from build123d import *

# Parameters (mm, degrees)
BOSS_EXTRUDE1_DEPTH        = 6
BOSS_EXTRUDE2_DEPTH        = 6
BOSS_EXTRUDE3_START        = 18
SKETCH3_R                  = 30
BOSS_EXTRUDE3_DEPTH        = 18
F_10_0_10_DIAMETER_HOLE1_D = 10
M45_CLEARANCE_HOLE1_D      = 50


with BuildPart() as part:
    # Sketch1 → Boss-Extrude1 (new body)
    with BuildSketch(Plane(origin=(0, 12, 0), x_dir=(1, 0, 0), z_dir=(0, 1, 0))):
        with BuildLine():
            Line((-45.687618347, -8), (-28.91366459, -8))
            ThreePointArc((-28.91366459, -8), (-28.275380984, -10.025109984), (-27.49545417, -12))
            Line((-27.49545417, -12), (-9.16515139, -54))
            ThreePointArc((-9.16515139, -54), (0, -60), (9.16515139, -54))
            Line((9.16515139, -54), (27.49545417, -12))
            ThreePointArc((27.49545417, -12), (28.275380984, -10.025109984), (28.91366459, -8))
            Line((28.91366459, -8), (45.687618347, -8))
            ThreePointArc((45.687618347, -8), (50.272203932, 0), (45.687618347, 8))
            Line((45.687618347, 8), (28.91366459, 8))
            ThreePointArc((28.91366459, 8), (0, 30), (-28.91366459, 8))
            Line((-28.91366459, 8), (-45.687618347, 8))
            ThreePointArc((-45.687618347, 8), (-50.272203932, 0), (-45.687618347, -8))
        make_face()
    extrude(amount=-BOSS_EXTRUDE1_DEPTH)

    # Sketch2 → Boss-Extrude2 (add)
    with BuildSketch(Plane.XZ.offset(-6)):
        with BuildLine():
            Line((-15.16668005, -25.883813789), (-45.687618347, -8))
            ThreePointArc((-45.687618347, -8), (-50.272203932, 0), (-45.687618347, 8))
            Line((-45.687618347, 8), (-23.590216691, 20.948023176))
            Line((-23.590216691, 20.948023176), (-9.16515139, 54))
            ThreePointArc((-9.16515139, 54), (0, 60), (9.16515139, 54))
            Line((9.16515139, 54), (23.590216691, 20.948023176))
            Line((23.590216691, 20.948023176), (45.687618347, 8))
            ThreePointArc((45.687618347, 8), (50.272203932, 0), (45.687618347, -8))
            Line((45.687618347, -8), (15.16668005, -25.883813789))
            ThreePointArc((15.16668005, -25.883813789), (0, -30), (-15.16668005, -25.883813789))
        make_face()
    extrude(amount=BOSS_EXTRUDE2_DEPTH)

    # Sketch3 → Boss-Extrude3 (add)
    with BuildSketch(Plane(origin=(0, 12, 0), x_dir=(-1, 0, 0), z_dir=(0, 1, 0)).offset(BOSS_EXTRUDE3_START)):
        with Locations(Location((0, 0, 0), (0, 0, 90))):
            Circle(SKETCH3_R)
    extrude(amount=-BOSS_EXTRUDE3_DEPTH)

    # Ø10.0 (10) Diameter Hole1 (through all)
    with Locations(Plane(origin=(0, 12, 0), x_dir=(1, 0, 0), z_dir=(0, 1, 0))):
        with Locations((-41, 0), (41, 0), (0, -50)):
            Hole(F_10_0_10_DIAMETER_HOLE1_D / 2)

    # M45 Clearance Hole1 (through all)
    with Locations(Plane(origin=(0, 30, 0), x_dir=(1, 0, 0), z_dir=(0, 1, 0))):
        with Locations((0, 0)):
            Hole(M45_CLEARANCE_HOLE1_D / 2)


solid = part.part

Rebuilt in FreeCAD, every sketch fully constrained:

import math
import FreeCAD as App
import Part
import Sketcher

V = App.Vector
Q = App.Units.Quantity

doc = App.newDocument("Part")
body = doc.addObject("PartDesign::Body", "Body")

# Sketch on XZ plane
sketch1 = body.newObject("Sketcher::SketchObject", "Sketch")
sketch1.AttachmentSupport = (doc.getObject("XZ_Plane"), [""])
sketch1.MapMode = "FlatFace"
sketch1.AttachmentOffset = App.Placement(V(0, 0, -12), App.Rotation())
sketch1.addGeometry([
    Part.LineSegment(V(-45.7, 8, 0), V(-28.9, 8, 0)),  # 0
    Part.ArcOfCircle(Part.Circle(V(0, 0, 0), V(0, 0, 1), 30), math.radians(156.42), math.radians(164.53)),  # 1
    Part.LineSegment(V(-27.5, 12, 0), V(-9.2, 54, 0)),  # 2
    Part.ArcOfCircle(Part.Circle(V(0, 50, 0), V(0, 0, 1), 10), math.radians(24), math.radians(156)),  # 3
    Part.LineSegment(V(9.2, 54, 0), V(27.5, 12, 0)),  # 4
    Part.ArcOfCircle(Part.Circle(V(0, 0, 0), V(0, 0, 1), 30), math.radians(15.47), math.radians(23.58)),  # 5
    Part.LineSegment(V(28.9, 8, 0), V(45.7, 8, 0)),  # 6
    Part.ArcOfCircle(Part.Circle(V(41, 0, 0), V(0, 0, 1), 9.3), math.radians(-60), math.radians(60)),  # 7
    Part.LineSegment(V(45.7, -8, 0), V(28.9, -8, 0)),  # 8
    Part.ArcOfCircle(Part.Circle(V(0, 0, 0), V(0, 0, 1), 30), math.radians(-165), math.radians(-15)),  # 9
    Part.LineSegment(V(-28.9, -8, 0), V(-45.7, -8, 0)),  # 10
    Part.ArcOfCircle(Part.Circle(V(-41, 0, 0), V(0, 0, 1), 9.3), math.radians(120), math.radians(240)),  # 11
], False)
sketch1.addConstraint([
    Sketcher.Constraint("Coincident", 0, 2, 1, 2),
    Sketcher.Constraint("Tangent", 1, 1, 2, 1),
    Sketcher.Constraint("Tangent", 2, 2, 3, 2),
    Sketcher.Constraint("Tangent", 3, 1, 4, 1),
    Sketcher.Constraint("Tangent", 4, 2, 5, 2),
    Sketcher.Constraint("Coincident", 5, 1, 6, 1),
    Sketcher.Constraint("Coincident", 6, 2, 7, 2),
    Sketcher.Constraint("Coincident", 7, 1, 8, 1),
    Sketcher.Constraint("Coincident", 8, 2, 9, 2),
    Sketcher.Constraint("Coincident", 9, 1, 10, 1),
    Sketcher.Constraint("Coincident", 10, 2, 11, 2),
    Sketcher.Constraint("Coincident", 11, 1, 0, 1),
    Sketcher.Constraint("Horizontal", 0),
    Sketcher.Constraint("Horizontal", 6),
    Sketcher.Constraint("Horizontal", 8),
    Sketcher.Constraint("Horizontal", 10),
    Sketcher.Constraint("Coincident", 1, 3, -1, 1),
    Sketcher.Constraint("Coincident", 5, 3, -1, 1),
    Sketcher.Constraint("Coincident", 9, 3, -1, 1),
    Sketcher.Constraint("Equal", 1, 5),
    Sketcher.Constraint("Equal", 5, 9),
    Sketcher.Constraint("Equal", 7, 11),
    Sketcher.Constraint("Symmetric", 7, 3, 11, 3, -1, 1),
    Sketcher.Constraint("Symmetric", 7, 1, 10, 2, -2),
    Sketcher.Constraint("PointOnObject", 3, 3, -2),
    Sketcher.Constraint("Horizontal", 0, 2, 5, 1),
    Sketcher.Constraint("Vertical", 6, 2, 7, 1),
    Sketcher.Constraint("Radius", 1, Q("30 mm")),
    Sketcher.Constraint("Radius", 3, Q("10 mm")),
    Sketcher.Constraint("DistanceY", -1, 1, 3, 3, Q("50 mm")),
    Sketcher.Constraint("DistanceX", -1, 1, 7, 3, Q("41 mm")),
    Sketcher.Constraint("DistanceY", -1, 1, 0, 2, Q("8 mm")),
    Sketcher.Constraint("Radius", 7, Q("9.272204 mm")),
])
pad1 = body.newObject("PartDesign::Pad", "Pad")
pad1.Profile = sketch1
pad1.Length = 6

# Sketch on XZ plane
sketch2 = body.newObject("Sketcher::SketchObject", "Sketch001")
sketch2.AttachmentSupport = (doc.getObject("XZ_Plane"), [""])
sketch2.MapMode = "FlatFace"
sketch2.AttachmentOffset = App.Placement(V(0, 0, -6), App.Rotation())
sketch2.addGeometry([
    Part.LineSegment(V(-46, -8, 0), V(-15, -26, 0)),  # 0
    Part.ArcOfCircle(Part.Circle(V(0, 0, 0), V(0, 0, 1), 30), math.radians(-120), math.radians(-60)),  # 1
    Part.LineSegment(V(15, -26, 0), V(46, -8, 0)),  # 2
    Part.ArcOfCircle(Part.Circle(V(41, 0, 0), V(0, 0, 1), 9), math.radians(-60), math.radians(60)),  # 3
    Part.LineSegment(V(46, 8, 0), V(24, 21, 0)),  # 4
    Part.LineSegment(V(24, 21, 0), V(9, 54, 0)),  # 5
    Part.ArcOfCircle(Part.Circle(V(0, 50, 0), V(0, 0, 1), 10), math.radians(24), math.radians(156)),  # 6
    Part.LineSegment(V(-9, 54, 0), V(-24, 21, 0)),  # 7
    Part.LineSegment(V(-24, 21, 0), V(-46, 8, 0)),  # 8
    Part.ArcOfCircle(Part.Circle(V(-41, 0, 0), V(0, 0, 1), 9), math.radians(120), math.radians(240)),  # 9
], False)
sketch2.addConstraint([
    Sketcher.Constraint("Tangent", 0, 2, 1, 1),
    Sketcher.Constraint("Tangent", 1, 2, 2, 1),
    Sketcher.Constraint("Tangent", 2, 2, 3, 1),
    Sketcher.Constraint("Tangent", 3, 2, 4, 1),
    Sketcher.Constraint("Coincident", 4, 2, 5, 1),
    Sketcher.Constraint("Tangent", 5, 2, 6, 1),
    Sketcher.Constraint("Tangent", 6, 2, 7, 1),
    Sketcher.Constraint("Coincident", 7, 2, 8, 1),
    Sketcher.Constraint("Tangent", 8, 2, 9, 1),
    Sketcher.Constraint("Tangent", 9, 2, 0, 1),
    Sketcher.Constraint("Coincident", 1, 3, -1, 1),
    Sketcher.Constraint("Equal", 3, 9),
    Sketcher.Constraint("Symmetric", 3, 3, 9, 3, -1, 1),
    Sketcher.Constraint("Symmetric", 5, 2, 6, 2, -2),
    Sketcher.Constraint("Symmetric", 3, 2, 8, 2, -2),
    Sketcher.Constraint("Parallel", 0, 4),
    Sketcher.Constraint("Radius", 1, Q("30 mm")),
    Sketcher.Constraint("Radius", 6, Q("10 mm")),
    Sketcher.Constraint("DistanceX", -1, 1, 3, 3, Q("41 mm")),
    Sketcher.Constraint("DistanceY", -1, 1, 6, 3, Q("50 mm")),
    Sketcher.Constraint("DistanceY", 2, 2, -1, 1, Q("8 mm")),
    Sketcher.Constraint("DistanceY", -1, 1, 5, 2, Q("54 mm")),
])
pad2 = body.newObject("PartDesign::Pad", "Pad001")
pad2.Profile = sketch2
pad2.Length = 6

# Sketch on XZ plane
sketch3 = body.newObject("Sketcher::SketchObject", "Sketch002")
sketch3.AttachmentSupport = (doc.getObject("XZ_Plane"), [""])
sketch3.MapMode = "FlatFace"
sketch3.AttachmentOffset = App.Placement(V(0, 0, -30), App.Rotation())
sketch3.addGeometry(Part.Circle(V(0, 0, 0), V(0, 0, 1), 30), False)
sketch3.addConstraint([
    Sketcher.Constraint("Coincident", 0, 3, -1, 1),
    Sketcher.Constraint("Diameter", 0, Q("60 mm")),
])
pad3 = body.newObject("PartDesign::Pad", "Pad002")
pad3.Profile = sketch3
pad3.Length = 18

# Sketch on XZ plane
sketch4 = body.newObject("Sketcher::SketchObject", "Sketch003")
sketch4.AttachmentSupport = (doc.getObject("XZ_Plane"), [""])
sketch4.MapMode = "FlatFace"
sketch4.AttachmentOffset = App.Placement(V(0, 0, -12), App.Rotation())
sketch4.addGeometry([
    Part.Circle(V(-41, 0, 0), V(0, 0, 1), 5),
    Part.Circle(V(41, 0, 0), V(0, 0, 1), 5),
    Part.Circle(V(0, 50, 0), V(0, 0, 1), 5),
], False)
sketch4.addConstraint([
    Sketcher.Constraint("Equal", 0, 1),
    Sketcher.Constraint("Equal", 1, 2),
    Sketcher.Constraint("Symmetric", 0, 3, 1, 3, -1, 1),
    Sketcher.Constraint("PointOnObject", 0, 3, -1),
    Sketcher.Constraint("PointOnObject", 2, 3, -2),
    Sketcher.Constraint("Diameter", 0, Q("10 mm")),
    Sketcher.Constraint("DistanceX", 0, 3, -1, 1, Q("41 mm")),
    Sketcher.Constraint("DistanceY", -1, 1, 2, 3, Q("50 mm")),
])
doc.recompute()
hole = body.newObject("PartDesign::Hole", "Hole")
hole.Profile = sketch4
hole.ThreadType = "None"
hole.Diameter = 10
hole.DepthType = "ThroughAll"
hole.Reversed = True

# Sketch on XZ plane
sketch5 = body.newObject("Sketcher::SketchObject", "Sketch004")
sketch5.AttachmentSupport = (doc.getObject("XZ_Plane"), [""])
sketch5.MapMode = "FlatFace"
sketch5.AttachmentOffset = App.Placement(V(0, 0, -30), App.Rotation())
sketch5.addGeometry(Part.Circle(V(0, 0, 0), V(0, 0, 1), 25), False)
sketch5.addConstraint([
    Sketcher.Constraint("Coincident", 0, 3, -1, 1),
    Sketcher.Constraint("Diameter", 0, Q("50 mm")),
])
doc.recompute()
hole2 = body.newObject("PartDesign::Hole", "Hole001")
hole2.Profile = sketch5
hole2.ThreadType = "None"
hole2.Diameter = 50
hole2.DepthType = "ThroughAll"
hole2.Reversed = True

doc.recompute()
